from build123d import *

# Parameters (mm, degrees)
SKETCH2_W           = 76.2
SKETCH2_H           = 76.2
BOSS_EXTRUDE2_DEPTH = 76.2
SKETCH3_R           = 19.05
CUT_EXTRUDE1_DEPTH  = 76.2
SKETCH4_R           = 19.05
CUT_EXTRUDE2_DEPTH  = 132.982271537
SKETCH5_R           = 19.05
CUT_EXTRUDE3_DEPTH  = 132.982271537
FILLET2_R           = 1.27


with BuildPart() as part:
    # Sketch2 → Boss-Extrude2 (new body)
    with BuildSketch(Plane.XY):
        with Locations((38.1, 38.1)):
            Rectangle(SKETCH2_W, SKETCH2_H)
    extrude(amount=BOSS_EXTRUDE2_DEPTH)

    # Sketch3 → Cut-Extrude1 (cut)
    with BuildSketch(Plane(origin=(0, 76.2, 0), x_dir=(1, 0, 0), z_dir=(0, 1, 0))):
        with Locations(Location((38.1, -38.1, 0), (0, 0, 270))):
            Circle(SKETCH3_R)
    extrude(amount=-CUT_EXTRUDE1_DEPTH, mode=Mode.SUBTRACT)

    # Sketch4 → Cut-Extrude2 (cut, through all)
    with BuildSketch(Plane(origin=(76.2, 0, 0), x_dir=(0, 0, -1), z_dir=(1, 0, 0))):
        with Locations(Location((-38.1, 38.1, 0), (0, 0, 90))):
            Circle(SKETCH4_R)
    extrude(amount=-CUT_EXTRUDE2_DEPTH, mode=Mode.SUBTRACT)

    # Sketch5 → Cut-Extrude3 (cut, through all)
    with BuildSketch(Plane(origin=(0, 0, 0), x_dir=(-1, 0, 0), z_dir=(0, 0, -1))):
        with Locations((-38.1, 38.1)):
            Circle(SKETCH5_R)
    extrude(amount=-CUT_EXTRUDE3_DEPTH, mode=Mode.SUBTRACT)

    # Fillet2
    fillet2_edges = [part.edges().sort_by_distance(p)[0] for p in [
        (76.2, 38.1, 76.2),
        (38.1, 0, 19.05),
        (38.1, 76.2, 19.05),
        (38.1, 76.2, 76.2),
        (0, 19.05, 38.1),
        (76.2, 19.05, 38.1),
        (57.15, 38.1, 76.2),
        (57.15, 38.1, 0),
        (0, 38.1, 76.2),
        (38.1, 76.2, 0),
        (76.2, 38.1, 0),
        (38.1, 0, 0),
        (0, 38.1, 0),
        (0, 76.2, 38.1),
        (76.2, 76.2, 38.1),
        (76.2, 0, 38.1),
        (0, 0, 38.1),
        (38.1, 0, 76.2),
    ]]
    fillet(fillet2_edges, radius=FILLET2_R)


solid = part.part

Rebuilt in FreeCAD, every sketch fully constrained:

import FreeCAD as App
import Part
import Sketcher
from FreeCAD import Vector
Q = App.Units.Quantity


def edges_at(feature, points):
    """Names of the edges that pass closest to the given points."""
    edges = feature.Shape.Edges
    near = lambda p: min(range(len(edges)), key=lambda i: edges[i].distToShape(Part.Vertex(*p))[0])
    return sorted({f"Edge{near(p) + 1}" for p in points})

doc = App.newDocument("Part")
body = doc.addObject("PartDesign::Body", "Body")

sketch1 = body.newObject("Sketcher::SketchObject", "Sketch")
sketch1.AttachmentSupport = (doc.getObject("XY_Plane"), [""])
sketch1.MapMode = "FlatFace"
sketch1.addGeometry([
    Part.LineSegment(Vector(0, 76, 0), Vector(0, 0, 0)),
    Part.LineSegment(Vector(0, 0, 0), Vector(76, 0, 0)),
    Part.LineSegment(Vector(76, 0, 0), Vector(76, 76, 0)),
    Part.LineSegment(Vector(76, 76, 0), Vector(0, 76, 0)),
], False)
sketch1.addConstraint([
    Sketcher.Constraint("Coincident", 0, 2, 1, 1),
    Sketcher.Constraint("Coincident", 1, 2, 2, 1),
    Sketcher.Constraint("Coincident", 2, 2, 3, 1),
    Sketcher.Constraint("Coincident", 3, 2, 0, 1),
    Sketcher.Constraint("Vertical", 0),
    Sketcher.Constraint("Horizontal", 1),
    Sketcher.Constraint("Vertical", 2),
    Sketcher.Constraint("Horizontal", 3),
    Sketcher.Constraint("Coincident", 0, 2, -1, 1),
    Sketcher.Constraint("Equal", 3, 0),
    Sketcher.Constraint("DistanceX", 1, 1, 1, 2, Q("3 in")),
])
pad1 = body.newObject("PartDesign::Pad", "Pad")
pad1.Profile = sketch1
pad1.Length = Q("3 in")

sketch2 = body.newObject("Sketcher::SketchObject", "Sketch001")
sketch2.AttachmentSupport = (doc.getObject("XZ_Plane"), [""])
sketch2.MapMode = "FlatFace"
sketch2.AttachmentOffset = App.Placement(Vector(0, 0, -3 * 25.4), App.Rotation())
sketch2.addGeometry(Part.Circle(Vector(38, 38, 0), Vector(0, 0, 1), 19), False)
sketch2.addConstraint([
    Sketcher.Constraint("Diameter", 0, Q("1.5 in")),
    Sketcher.Constraint("DistanceX", -1, 1, 0, 3, Q("1.5 in")),
    Sketcher.Constraint("DistanceY", -1, 1, 0, 3, Q("1.5 in")),
])
pocket1 = body.newObject("PartDesign::Pocket", "Pocket")
pocket1.Profile = sketch2
pocket1.Length = Q("3 in")
pocket1.Reversed = True

sketch3 = body.newObject("Sketcher::SketchObject", "Sketch002")
sketch3.AttachmentSupport = (doc.getObject("YZ_Plane"), [""])
sketch3.MapMode = "FlatFace"
sketch3.AttachmentOffset = App.Placement(Vector(0, 0, 3 * 25.4), App.Rotation())
sketch3.addGeometry(Part.Circle(Vector(38, 38, 0), Vector(0, 0, 1), 19), False)
sketch3.addConstraint([
    Sketcher.Constraint("Diameter", 0, Q("1.5 in")),
    Sketcher.Constraint("DistanceX", -1, 1, 0, 3, Q("1.5 in")),
    Sketcher.Constraint("DistanceY", -1, 1, 0, 3, Q("1.5 in")),
])
pocket2 = body.newObject("PartDesign::Pocket", "Pocket001")
pocket2.Profile = sketch3
pocket2.Type = "ThroughAll"

sketch4 = body.newObject("Sketcher::SketchObject", "Sketch003")
sketch4.AttachmentSupport = (doc.getObject("XY_Plane"), [""])
sketch4.MapMode = "FlatFace"
sketch4.addGeometry(Part.Circle(Vector(38, 38, 0), Vector(0, 0, 1), 19), False)
sketch4.addConstraint([
    Sketcher.Constraint("Diameter", 0, Q("1.5 in")),
    Sketcher.Constraint("DistanceX", -1, 1, 0, 3, Q("1.5 in")),
    Sketcher.Constraint("DistanceY", -1, 1, 0, 3, Q("1.5 in")),
])
pocket3 = body.newObject("PartDesign::Pocket", "Pocket002")
pocket3.Profile = sketch4
pocket3.Type = "ThroughAll"
pocket3.Reversed = True
doc.recompute()

fillet = body.newObject("PartDesign::Fillet", "Fillet")
fillet.Base = (pocket3, edges_at(pocket3, [
    (76.2, 38.1, 76.2),
    (38.1, 0, 19.05),
    (38.1, 76.2, 19.05),
    (38.1, 76.2, 76.2),
    (0, 19.05, 38.1),
    (76.2, 19.05, 38.1),
    (57.15, 38.1, 76.2),
    (57.15, 38.1, 0),
    (0, 38.1, 76.2),
    (38.1, 76.2, 0),
    (76.2, 38.1, 0),
    (38.1, 0, 0),
    (0, 38.1, 0),
    (0, 76.2, 38.1),
    (76.2, 76.2, 38.1),
    (76.2, 0, 38.1),
    (0, 0, 38.1),
    (38.1, 0, 76.2),
]))
fillet.Radius = Q("0.05 in")

doc.recompute()
